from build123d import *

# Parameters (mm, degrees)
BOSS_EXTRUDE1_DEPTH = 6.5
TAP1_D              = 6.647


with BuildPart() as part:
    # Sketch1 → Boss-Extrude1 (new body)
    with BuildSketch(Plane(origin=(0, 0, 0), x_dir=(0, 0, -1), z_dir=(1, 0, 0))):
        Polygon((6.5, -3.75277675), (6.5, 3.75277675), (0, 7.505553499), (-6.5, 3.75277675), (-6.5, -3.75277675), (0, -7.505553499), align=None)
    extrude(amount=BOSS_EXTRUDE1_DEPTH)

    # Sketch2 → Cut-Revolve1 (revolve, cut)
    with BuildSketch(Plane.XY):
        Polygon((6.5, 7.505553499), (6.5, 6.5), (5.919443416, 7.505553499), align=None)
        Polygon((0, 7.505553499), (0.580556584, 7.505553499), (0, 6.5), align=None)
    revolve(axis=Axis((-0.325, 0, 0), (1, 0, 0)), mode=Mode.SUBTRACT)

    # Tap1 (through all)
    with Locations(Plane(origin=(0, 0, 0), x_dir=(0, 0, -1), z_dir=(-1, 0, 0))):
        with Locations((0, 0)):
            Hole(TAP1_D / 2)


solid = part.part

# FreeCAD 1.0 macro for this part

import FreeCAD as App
import Part
import Sketcher
Q = App.Units.Quantity


def add_polygon(sketch, points):
    """Adds a closed chain of lines whose ends are joined by coincident constraints."""
    first, n = sketch.GeometryCount, len(points)
    for a, b in zip(points, points[1:] + points[:1]):
        sketch.addGeometry(Part.LineSegment(App.Vector(*a, 0), App.Vector(*b, 0)), False)
    for i in range(n):
        sketch.addConstraint(Sketcher.Constraint("Coincident", first + i, 2, first + (i + 1) % n, 1))

doc = App.newDocument("Part")
body = doc.addObject("PartDesign::Body", "Body")

# Sketch on YZ plane
sketch1 = doc.addObject("Sketcher::SketchObject", "Sketch")
body.addObject(sketch1)
sketch1.AttachmentSupport = (doc.YZ_Plane, [""])
sketch1.MapMode = "FlatFace"
add_polygon(sketch1, [(-4, -6), (4, -6), (8, 0), (4, 6), (-4, 6), (-8, 0)])  # lines 0-5
sketch1.addConstraint([
    Sketcher.Constraint("Horizontal", 0),
    Sketcher.Constraint("Horizontal", 3),
    Sketcher.Constraint("Symmetric", 0, 2, 3, 2, -1, 1),
    Sketcher.Constraint("Symmetric", 1, 2, 4, 2, -1, 1),
    Sketcher.Constraint("PointOnObject", 1, 2, -1),
    Sketcher.Constraint("Parallel", 2, 5),
    Sketcher.Constraint("Vertical", 0, 2, 2, 2),
    Sketcher.Constraint("Angle", 1, Q("60 deg")),
    Sketcher.Constraint("DistanceY", 0, 2, 2, 2, 13.0),
    Sketcher.Constraint("DistanceX", 0, 1, 0, 2, 7.505554),
])
pad1 = doc.addObject("PartDesign::Pad", "Pad")
body.addObject(pad1)
pad1.Profile = sketch1
pad1.Length = 6.5

# Sketch on XY plane
sketch2 = doc.addObject("Sketcher::SketchObject", "Sketch001")
body.addObject(sketch2)
sketch2.AttachmentSupport = (doc.XY_Plane, [""])
sketch2.MapMode = "FlatFace"
add_polygon(sketch2, [(6.5, 6.5), (6.5, 7.5), (5.9, 7.5)])  # lines 0-2
add_polygon(sketch2, [(0.6, 7.5), (0, 7.5), (0, 6.5)])  # lines 3-5
sketch2.addConstraint([
    Sketcher.Constraint("Vertical", 0),
    Sketcher.Constraint("Horizontal", 1),
    Sketcher.Constraint("Horizontal", 3),
    Sketcher.Constraint("Vertical", 4),
    Sketcher.Constraint("PointOnObject", 3, 2, -2),
    Sketcher.Constraint("Horizontal", 1, 2, 3, 2),
    Sketcher.Constraint("Horizontal", 2, 2, 4, 2),
    Sketcher.Constraint("Equal", 1, 3),
    Sketcher.Constraint("Angle", 2, Q("-60 deg")),
    Sketcher.Constraint("DistanceX", -1, 1, 0, 2, 6.5),
    Sketcher.Constraint("DistanceY", -1, 1, 2, 2, 6.5),
    Sketcher.Constraint("DistanceX", 1, 2, 1, 1, 0.580557),
])
groove = doc.addObject("PartDesign::Groove", "Groove")
body.addObject(groove)
groove.Profile = sketch2
groove.ReferenceAxis = (sketch2, ["H_Axis"])
groove.Angle = 360

# Sketch on YZ plane
sketch3 = doc.addObject("Sketcher::SketchObject", "Sketch002")
body.addObject(sketch3)
sketch3.AttachmentSupport = (doc.YZ_Plane, [""])
sketch3.MapMode = "FlatFace"
sketch3.addGeometry(Part.Circle(App.Vector(0, 0, 0), App.Vector(0, 0, 1), 3.3), False)
sketch3.addConstraint([
    Sketcher.Constraint("Coincident", 0, 3, -1, 1),
    Sketcher.Constraint("Diameter", 0, 6.647),
])
doc.recompute()
hole = doc.addObject("PartDesign::Hole", "Hole")
body.addObject(hole)
hole.Profile = sketch3
hole.ThreadType = "None"
hole.Diameter = 6.647
hole.DepthType = "ThroughAll"
hole.Reversed = True

doc.recompute()
